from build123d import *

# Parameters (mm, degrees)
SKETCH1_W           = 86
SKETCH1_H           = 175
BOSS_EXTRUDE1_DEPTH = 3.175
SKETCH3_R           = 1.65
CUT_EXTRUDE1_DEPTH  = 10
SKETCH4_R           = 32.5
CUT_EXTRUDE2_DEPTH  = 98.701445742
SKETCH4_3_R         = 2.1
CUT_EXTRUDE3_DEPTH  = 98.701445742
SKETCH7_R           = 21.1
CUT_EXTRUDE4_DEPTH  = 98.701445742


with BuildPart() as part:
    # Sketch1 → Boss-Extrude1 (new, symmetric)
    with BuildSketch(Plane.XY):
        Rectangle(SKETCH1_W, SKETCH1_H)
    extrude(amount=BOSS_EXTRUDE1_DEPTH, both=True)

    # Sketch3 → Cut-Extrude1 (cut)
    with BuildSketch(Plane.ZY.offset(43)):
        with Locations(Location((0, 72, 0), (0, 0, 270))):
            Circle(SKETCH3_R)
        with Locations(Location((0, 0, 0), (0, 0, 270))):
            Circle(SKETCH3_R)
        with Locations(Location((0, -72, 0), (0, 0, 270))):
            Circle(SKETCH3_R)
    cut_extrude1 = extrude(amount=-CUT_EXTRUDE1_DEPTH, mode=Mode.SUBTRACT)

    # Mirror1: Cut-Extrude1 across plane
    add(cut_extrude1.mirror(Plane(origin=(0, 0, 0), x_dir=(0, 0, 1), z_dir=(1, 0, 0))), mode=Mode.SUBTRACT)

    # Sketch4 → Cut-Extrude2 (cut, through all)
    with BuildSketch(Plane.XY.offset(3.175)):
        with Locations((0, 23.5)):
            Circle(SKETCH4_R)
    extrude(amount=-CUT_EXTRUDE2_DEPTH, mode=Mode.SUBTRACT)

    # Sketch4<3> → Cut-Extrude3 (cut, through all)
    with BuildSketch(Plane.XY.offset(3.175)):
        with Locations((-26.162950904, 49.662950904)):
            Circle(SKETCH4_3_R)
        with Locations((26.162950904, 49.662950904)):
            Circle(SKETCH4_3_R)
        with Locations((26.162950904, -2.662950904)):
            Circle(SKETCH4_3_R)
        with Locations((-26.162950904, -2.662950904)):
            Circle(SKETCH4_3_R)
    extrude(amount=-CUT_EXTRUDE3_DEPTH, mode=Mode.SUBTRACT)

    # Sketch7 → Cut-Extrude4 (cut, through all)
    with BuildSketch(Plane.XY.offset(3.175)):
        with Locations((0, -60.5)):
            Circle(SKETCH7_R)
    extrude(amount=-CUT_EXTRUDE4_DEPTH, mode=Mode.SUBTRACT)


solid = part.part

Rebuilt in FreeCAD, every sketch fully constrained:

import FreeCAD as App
import Part
import Sketcher
from FreeCAD import Vector


def add_polygon(sketch, points):
    """Adds a closed chain of lines whose ends are joined by coincident constraints."""
    first, n = sketch.GeometryCount, len(points)
    for a, b in zip(points, points[1:] + points[:1]):
        sketch.addGeometry(Part.LineSegment(App.Vector(*a, 0), App.Vector(*b, 0)), False)
    for i in range(n):
        sketch.addConstraint(Sketcher.Constraint("Coincident", first + i, 2, first + (i + 1) % n, 1))

doc = App.newDocument("Part")
body = doc.addObject("PartDesign::Body", "Body")

sketch1 = doc.addObject("Sketcher::SketchObject", "Sketch")
body.addObject(sketch1)
sketch1.AttachmentSupport = (doc.XY_Plane, [""])
sketch1.MapMode = "FlatFace"
add_polygon(sketch1, [(-43, 87.5), (-43, -87.5), (43, -87.5), (43, 87.5)])
sketch1.addConstraint([
    Sketcher.Constraint("Vertical", 0),
    Sketcher.Constraint("Horizontal", 1),
    Sketcher.Constraint("Vertical", 2),
    Sketcher.Constraint("Horizontal", 3),
    Sketcher.Constraint("Symmetric", 0, 2, 2, 2, -1, 1),
    Sketcher.Constraint("DistanceX", 1, 1, 1, 2, 86.0),
    Sketcher.Constraint("DistanceY", 0, 2, 0, 1, 175.0),
])
pad1 = doc.addObject("PartDesign::Pad", "Pad")
body.addObject(pad1)
pad1.Profile = sketch1
pad1.Length = 6.35
pad1.Midplane = True

sketch2 = doc.addObject("Sketcher::SketchObject", "Sketch001")
body.addObject(sketch2)
sketch2.AttachmentSupport = (doc.YZ_Plane, [""])
sketch2.MapMode = "FlatFace"
sketch2.AttachmentOffset = App.Placement(Vector(0, 0, -43), App.Rotation())
sketch2.addGeometry([
    Part.Circle(Vector(72, 0, 0), Vector(0, 0, 1), 1.65),
    Part.Circle(Vector(0, 0, 0), Vector(0, 0, 1), 1.65),
    Part.Circle(Vector(-72, 0, 0), Vector(0, 0, 1), 1.65),
], False)
sketch2.addConstraint([
    Sketcher.Constraint("Coincident", 1, 3, -1, 1),
    Sketcher.Constraint("Equal", 0, 1),
    Sketcher.Constraint("Equal", 1, 2),
    Sketcher.Constraint("Symmetric", 0, 3, 2, 3, -1, 1),
    Sketcher.Constraint("PointOnObject", 0, 3, -1),
    Sketcher.Constraint("Diameter", 0, 3.3),
    Sketcher.Constraint("DistanceX", -1, 1, 0, 3, 72.0),
])
pocket1 = doc.addObject("PartDesign::Pocket", "Pocket")
body.addObject(pocket1)
pocket1.Profile = sketch2
pocket1.Length = 10
pocket1.Reversed = True
doc.recompute()

mirrored = doc.addObject("PartDesign::Mirrored", "Mirrored")
body.addObject(mirrored)
mirrored.Originals = [pocket1]
mirrored.MirrorPlane = (doc.YZ_Plane, [""])
body.Tip = mirrored

sketch3 = doc.addObject("Sketcher::SketchObject", "Sketch002")
body.addObject(sketch3)
sketch3.AttachmentSupport = (doc.XY_Plane, [""])
sketch3.MapMode = "FlatFace"
sketch3.AttachmentOffset = App.Placement(Vector(0, 0, 3.175), App.Rotation())
sketch3.addGeometry(Part.Circle(Vector(0, 23.5, 0), Vector(0, 0, 1), 32.5), False)
sketch3.addConstraint([
    Sketcher.Constraint("PointOnObject", 0, 3, -2),
    Sketcher.Constraint("Diameter", 0, 65.0),
    Sketcher.Constraint("DistanceY", -1, 1, 0, 3, 23.5),
])
pocket2 = doc.addObject("PartDesign::Pocket", "Pocket001")
body.addObject(pocket2)
pocket2.Profile = sketch3
pocket2.Type = "ThroughAll"

sketch4 = doc.addObject("Sketcher::SketchObject", "Sketch003")
body.addObject(sketch4)
sketch4.AttachmentSupport = (doc.XY_Plane, [""])
sketch4.MapMode = "FlatFace"
sketch4.AttachmentOffset = App.Placement(Vector(0, 0, 3.175), App.Rotation())
sketch4.addGeometry([
    Part.Circle(Vector(-26.162951, 49.662951, 0), Vector(0, 0, 1), 2.1),
    Part.Circle(Vector(26.162951, 49.662951, 0), Vector(0, 0, 1), 2.1),
    Part.Circle(Vector(26.162951, -2.662951, 0), Vector(0, 0, 1), 2.1),
    Part.Circle(Vector(-26.162951, -2.662951, 0), Vector(0, 0, 1), 2.1),
], False)
sketch4.addConstraint([
    Sketcher.Constraint("Equal", 0, 1),
    Sketcher.Constraint("Equal", 1, 2),
    Sketcher.Constraint("Equal", 2, 3),
    Sketcher.Constraint("Symmetric", 0, 3, 1, 3, -2),
    Sketcher.Constraint("Symmetric", 2, 3, 3, 3, -2),
    Sketcher.Constraint("Vertical", 1, 3, 2, 3),
    Sketcher.Constraint("Diameter", 0, 4.2),
    Sketcher.Constraint("DistanceX", 0, 3, 1, 3, 52.325902),
    Sketcher.Constraint("DistanceY", 2, 3, 1, 3, 52.325902),
    Sketcher.Constraint("DistanceY", -1, 1, 0, 3, 49.662951),
])
pocket3 = doc.addObject("PartDesign::Pocket", "Pocket002")
body.addObject(pocket3)
pocket3.Profile = sketch4
pocket3.Type = "ThroughAll"

sketch5 = doc.addObject("Sketcher::SketchObject", "Sketch004")
body.addObject(sketch5)
sketch5.AttachmentSupport = (doc.XY_Plane, [""])
sketch5.MapMode = "FlatFace"
sketch5.AttachmentOffset = App.Placement(Vector(0, 0, 3.175), App.Rotation())
sketch5.addGeometry(Part.Circle(Vector(0, -60.5, 0), Vector(0, 0, 1), 21.1), False)
sketch5.addConstraint([
    Sketcher.Constraint("PointOnObject", 0, 3, -2),
    Sketcher.Constraint("Diameter", 0, 42.2),
    Sketcher.Constraint("DistanceY", 0, 3, -1, 1, 60.5),
])
pocket4 = doc.addObject("PartDesign::Pocket", "Pocket003")
body.addObject(pocket4)
pocket4.Profile = sketch5
pocket4.Type = "ThroughAll"

doc.recompute()
